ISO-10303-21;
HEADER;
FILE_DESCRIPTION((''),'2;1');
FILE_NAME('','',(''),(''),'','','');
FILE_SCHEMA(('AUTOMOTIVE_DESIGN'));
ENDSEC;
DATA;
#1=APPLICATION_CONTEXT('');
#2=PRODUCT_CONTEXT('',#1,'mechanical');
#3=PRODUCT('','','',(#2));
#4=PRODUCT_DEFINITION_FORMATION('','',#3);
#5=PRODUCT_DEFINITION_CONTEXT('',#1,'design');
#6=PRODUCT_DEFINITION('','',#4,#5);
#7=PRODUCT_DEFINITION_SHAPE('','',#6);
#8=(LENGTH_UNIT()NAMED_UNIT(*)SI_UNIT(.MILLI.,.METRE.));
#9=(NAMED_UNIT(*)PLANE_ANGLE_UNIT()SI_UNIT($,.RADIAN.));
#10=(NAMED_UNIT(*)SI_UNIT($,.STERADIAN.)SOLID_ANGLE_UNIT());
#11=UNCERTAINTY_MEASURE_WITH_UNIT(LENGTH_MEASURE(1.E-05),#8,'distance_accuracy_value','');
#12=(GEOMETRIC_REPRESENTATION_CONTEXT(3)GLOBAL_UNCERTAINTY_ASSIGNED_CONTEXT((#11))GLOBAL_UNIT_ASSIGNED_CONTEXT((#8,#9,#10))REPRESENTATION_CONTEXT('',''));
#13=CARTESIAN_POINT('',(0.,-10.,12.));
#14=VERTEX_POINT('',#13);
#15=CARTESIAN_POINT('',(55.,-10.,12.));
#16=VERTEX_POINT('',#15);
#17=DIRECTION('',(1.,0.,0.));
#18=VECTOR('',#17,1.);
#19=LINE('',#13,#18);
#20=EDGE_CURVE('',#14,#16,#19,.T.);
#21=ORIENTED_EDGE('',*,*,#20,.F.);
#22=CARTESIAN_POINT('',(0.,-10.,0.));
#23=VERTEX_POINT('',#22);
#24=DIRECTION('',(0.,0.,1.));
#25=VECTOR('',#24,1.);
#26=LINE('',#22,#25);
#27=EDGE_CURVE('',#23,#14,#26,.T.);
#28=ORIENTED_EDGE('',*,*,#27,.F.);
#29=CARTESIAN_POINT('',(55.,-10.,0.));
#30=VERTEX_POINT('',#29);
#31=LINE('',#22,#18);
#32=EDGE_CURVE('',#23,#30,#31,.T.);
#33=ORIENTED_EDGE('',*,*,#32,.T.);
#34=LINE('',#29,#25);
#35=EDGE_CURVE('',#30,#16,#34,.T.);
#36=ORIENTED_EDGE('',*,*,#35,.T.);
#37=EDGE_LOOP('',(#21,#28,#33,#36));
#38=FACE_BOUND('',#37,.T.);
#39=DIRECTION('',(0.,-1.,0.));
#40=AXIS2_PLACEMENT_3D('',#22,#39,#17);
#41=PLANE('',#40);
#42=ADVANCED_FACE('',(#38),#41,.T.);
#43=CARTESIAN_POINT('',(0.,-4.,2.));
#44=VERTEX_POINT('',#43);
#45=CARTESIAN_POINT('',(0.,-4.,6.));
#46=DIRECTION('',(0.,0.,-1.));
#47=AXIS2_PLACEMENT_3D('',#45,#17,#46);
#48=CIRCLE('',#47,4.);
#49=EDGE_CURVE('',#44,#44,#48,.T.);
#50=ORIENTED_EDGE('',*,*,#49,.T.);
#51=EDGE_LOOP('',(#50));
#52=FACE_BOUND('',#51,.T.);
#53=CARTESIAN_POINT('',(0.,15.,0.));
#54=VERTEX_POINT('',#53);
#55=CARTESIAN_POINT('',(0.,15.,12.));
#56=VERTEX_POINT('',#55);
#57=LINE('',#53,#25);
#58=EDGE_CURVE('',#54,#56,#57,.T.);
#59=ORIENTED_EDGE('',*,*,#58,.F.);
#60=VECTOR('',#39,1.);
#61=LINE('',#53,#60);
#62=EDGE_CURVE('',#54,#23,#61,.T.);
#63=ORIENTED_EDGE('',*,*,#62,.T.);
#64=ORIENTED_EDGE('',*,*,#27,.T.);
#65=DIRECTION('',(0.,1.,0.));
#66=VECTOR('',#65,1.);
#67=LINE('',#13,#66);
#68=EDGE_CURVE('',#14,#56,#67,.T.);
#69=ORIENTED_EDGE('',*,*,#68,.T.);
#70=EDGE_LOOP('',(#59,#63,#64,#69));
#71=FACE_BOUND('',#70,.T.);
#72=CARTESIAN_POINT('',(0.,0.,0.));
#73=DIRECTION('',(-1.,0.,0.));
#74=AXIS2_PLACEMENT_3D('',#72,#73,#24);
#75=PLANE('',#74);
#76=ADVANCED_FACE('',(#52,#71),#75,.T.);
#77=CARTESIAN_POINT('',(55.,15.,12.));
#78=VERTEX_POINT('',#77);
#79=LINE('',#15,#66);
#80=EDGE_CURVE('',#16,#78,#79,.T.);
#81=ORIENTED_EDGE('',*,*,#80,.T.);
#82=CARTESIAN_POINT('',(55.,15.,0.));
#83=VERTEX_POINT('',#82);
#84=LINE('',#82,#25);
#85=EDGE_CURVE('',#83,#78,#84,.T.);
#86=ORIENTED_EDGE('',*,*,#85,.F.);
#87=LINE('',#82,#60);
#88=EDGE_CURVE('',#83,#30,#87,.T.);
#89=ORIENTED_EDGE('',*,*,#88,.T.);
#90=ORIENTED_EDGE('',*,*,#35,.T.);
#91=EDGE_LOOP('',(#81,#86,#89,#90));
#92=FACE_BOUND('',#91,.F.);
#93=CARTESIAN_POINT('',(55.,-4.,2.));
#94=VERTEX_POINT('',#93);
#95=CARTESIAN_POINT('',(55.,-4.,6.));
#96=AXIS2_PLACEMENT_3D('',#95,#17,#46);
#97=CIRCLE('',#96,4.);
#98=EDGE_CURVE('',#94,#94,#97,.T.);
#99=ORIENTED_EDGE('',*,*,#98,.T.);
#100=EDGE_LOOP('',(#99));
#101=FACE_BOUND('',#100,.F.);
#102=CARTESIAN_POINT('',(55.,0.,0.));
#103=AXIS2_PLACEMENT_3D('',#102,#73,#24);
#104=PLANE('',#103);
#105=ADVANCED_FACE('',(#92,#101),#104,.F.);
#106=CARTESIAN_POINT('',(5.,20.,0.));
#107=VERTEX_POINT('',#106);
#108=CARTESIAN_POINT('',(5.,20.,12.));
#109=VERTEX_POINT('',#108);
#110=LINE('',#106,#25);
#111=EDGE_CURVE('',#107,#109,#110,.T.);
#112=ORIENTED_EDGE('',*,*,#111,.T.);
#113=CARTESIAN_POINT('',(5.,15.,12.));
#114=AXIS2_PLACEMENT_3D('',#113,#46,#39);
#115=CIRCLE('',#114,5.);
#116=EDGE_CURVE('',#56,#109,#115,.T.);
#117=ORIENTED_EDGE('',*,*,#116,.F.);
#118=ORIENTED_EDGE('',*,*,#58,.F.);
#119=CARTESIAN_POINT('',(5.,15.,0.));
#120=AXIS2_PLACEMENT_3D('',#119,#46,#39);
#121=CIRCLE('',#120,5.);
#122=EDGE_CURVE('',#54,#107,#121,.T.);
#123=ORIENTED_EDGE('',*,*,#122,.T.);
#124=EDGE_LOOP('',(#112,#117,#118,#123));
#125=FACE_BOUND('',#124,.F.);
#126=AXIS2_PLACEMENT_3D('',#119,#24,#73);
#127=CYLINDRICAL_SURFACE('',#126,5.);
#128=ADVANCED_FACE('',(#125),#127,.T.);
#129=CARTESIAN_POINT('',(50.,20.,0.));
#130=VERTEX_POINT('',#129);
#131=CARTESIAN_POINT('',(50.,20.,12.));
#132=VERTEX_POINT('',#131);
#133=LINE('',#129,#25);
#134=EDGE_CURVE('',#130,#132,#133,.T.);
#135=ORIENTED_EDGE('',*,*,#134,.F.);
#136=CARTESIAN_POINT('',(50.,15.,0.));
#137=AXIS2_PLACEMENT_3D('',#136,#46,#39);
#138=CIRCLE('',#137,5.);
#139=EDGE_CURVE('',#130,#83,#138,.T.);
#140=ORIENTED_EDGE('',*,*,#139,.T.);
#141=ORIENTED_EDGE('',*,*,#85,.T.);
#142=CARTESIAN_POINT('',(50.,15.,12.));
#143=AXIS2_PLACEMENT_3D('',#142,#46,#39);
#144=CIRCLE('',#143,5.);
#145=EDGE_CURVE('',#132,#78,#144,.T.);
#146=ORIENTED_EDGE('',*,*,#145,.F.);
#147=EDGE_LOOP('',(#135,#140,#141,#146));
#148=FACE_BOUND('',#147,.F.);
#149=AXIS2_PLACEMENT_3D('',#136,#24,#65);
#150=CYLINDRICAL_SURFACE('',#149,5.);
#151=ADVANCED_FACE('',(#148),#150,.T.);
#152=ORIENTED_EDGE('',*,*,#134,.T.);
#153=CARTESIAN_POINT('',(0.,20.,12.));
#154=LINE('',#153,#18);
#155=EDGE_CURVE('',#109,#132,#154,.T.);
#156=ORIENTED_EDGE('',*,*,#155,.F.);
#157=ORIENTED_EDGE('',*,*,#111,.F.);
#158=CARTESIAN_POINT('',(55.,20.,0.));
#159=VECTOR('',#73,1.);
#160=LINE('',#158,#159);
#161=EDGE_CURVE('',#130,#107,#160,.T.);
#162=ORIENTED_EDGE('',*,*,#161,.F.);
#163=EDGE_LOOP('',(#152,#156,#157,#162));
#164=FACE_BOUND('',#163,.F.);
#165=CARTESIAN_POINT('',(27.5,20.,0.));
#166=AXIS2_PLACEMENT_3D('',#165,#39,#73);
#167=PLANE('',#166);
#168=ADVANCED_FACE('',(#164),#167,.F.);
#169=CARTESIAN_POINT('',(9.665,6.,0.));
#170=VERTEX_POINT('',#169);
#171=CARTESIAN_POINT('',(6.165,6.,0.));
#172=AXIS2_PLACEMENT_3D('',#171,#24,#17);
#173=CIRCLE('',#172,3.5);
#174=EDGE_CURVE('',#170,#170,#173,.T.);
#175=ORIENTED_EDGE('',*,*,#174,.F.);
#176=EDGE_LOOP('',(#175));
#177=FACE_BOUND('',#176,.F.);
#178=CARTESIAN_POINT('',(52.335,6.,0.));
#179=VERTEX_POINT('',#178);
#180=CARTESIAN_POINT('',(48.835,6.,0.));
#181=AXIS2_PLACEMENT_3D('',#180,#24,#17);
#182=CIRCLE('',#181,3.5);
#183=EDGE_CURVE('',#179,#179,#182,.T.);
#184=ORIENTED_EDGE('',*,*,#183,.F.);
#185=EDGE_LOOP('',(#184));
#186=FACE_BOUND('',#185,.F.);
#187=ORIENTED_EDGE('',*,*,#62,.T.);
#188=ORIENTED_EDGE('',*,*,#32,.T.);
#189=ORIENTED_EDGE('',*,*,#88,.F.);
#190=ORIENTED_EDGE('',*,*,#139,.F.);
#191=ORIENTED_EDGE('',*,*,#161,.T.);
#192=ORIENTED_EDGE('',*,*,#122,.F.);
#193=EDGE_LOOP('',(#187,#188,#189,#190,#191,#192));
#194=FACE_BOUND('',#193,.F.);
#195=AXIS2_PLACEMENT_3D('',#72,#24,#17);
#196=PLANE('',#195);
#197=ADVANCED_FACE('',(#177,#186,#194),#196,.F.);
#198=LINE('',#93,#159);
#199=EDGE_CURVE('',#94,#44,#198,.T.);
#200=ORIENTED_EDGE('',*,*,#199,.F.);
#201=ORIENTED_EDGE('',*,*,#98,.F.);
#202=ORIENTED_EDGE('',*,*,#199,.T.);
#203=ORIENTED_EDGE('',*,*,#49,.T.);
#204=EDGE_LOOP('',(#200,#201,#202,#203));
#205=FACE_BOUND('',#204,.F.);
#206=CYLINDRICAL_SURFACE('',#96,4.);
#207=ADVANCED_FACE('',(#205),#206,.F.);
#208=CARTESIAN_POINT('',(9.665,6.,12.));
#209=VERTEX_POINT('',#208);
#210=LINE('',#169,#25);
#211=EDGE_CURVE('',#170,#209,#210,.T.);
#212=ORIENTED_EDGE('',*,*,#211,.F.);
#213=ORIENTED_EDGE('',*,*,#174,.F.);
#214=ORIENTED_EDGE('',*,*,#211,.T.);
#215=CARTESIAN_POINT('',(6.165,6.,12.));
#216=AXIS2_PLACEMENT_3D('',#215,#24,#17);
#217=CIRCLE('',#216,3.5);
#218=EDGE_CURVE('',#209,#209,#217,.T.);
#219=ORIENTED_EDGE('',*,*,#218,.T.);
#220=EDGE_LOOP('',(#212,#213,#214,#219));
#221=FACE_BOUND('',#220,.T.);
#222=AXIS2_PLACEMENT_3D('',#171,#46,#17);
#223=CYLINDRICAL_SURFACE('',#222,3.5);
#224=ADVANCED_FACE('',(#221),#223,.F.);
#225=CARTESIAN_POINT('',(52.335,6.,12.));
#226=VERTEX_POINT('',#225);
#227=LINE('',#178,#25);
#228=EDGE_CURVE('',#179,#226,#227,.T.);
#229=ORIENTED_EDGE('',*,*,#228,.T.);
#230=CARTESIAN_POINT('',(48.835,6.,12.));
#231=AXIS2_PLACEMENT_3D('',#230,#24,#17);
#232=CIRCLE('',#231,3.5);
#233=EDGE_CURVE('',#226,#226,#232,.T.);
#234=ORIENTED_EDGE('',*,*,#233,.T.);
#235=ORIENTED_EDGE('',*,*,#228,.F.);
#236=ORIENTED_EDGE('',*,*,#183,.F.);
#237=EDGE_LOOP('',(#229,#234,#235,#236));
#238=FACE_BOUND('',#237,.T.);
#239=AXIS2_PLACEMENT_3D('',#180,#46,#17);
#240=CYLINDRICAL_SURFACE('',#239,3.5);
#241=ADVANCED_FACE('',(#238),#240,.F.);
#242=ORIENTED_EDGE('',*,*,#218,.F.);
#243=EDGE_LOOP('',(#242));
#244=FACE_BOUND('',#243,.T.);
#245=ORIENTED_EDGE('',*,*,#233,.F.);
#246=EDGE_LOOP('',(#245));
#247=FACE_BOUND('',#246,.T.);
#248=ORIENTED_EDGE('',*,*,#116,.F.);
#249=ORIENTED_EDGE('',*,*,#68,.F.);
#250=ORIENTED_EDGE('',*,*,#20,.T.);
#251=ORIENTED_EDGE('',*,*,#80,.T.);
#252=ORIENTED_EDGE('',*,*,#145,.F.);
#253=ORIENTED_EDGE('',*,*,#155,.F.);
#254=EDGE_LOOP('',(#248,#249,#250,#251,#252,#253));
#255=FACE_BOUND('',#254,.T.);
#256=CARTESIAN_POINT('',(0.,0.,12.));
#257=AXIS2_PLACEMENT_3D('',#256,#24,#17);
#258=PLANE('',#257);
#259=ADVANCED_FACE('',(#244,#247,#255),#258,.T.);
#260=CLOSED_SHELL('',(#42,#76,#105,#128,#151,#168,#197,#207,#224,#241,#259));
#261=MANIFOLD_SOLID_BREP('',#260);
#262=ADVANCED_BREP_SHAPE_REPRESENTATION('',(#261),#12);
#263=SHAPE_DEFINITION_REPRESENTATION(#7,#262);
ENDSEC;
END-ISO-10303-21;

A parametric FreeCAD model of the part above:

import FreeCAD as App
import Part
import Sketcher


def edges_at(feature, points):
    """Names of the edges that pass closest to the given points."""
    edges = feature.Shape.Edges
    near = lambda p: min(range(len(edges)), key=lambda i: edges[i].distToShape(Part.Vertex(*p))[0])
    return sorted({f"Edge{near(p) + 1}" for p in points})


def add_polygon(sketch, points):
    """Adds a closed chain of lines whose ends are joined by coincident constraints."""
    first, n = sketch.GeometryCount, len(points)
    for a, b in zip(points, points[1:] + points[:1]):
        sketch.addGeometry(Part.LineSegment(App.Vector(*a, 0), App.Vector(*b, 0)), False)
    for i in range(n):
        sketch.addConstraint(Sketcher.Constraint("Coincident", first + i, 2, first + (i + 1) % n, 1))

doc = App.newDocument("Part")
body = doc.addObject("PartDesign::Body", "Body")

# Sketch on XY plane
sketch1 = body.newObject("Sketcher::SketchObject", "Sketch")
sketch1.AttachmentSupport = (doc.getObject("XY_Plane"), [""])
sketch1.MapMode = "FlatFace"
add_polygon(sketch1, [(0, 20), (0, 0), (55, 0), (55, 20)])  # lines 0-3
sketch1.addGeometry(Part.Circle(App.Vector(6.2, 6, 0), App.Vector(0, 0, 1), 3.5), False)  # 4
sketch1.addGeometry(Part.Circle(App.Vector(48.8, 6, 0), App.Vector(0, 0, 1), 3.5), False)  # 5
sketch1.addConstraint(Sketcher.Constraint("Vertical", 0))
sketch1.addConstraint(Sketcher.Constraint("Horizontal", 1))
sketch1.addConstraint(Sketcher.Constraint("Vertical", 2))
sketch1.addConstraint(Sketcher.Constraint("Horizontal", 3))
sketch1.addConstraint(Sketcher.Constraint("Coincident", 0, 2, -1, 1))
sketch1.addConstraint(Sketcher.Constraint("Equal", 4, 5))
sketch1.addConstraint(Sketcher.Constraint("Horizontal", 4, 3, 5, 3))
sketch1.addConstraint(Sketcher.Constraint("Diameter", 4, 7.0))
sketch1.addConstraint(Sketcher.Constraint("DistanceX", 1, 1, 1, 2, 55.0))
sketch1.addConstraint(Sketcher.Constraint("DistanceY", 0, 2, 0, 1, 20.0))
sketch1.addConstraint(Sketcher.Constraint("DistanceY", -1, 1, 4, 3, 6.0))
sketch1.addConstraint(Sketcher.Constraint("DistanceX", 4, 3, 5, 3, 42.67))
sketch1.addConstraint(Sketcher.Constraint("DistanceX", -1, 1, 4, 3, 6.165))
pad1 = body.newObject("PartDesign::Pad", "Pad")
pad1.Profile = sketch1
pad1.Length = 12
doc.recompute()

fillet = body.newObject("PartDesign::Fillet", "Fillet")
fillet.Base = (pad1, edges_at(pad1, [(55, 20, 6), (0, 20, 6)]))
fillet.Radius = 5

# Sketch on XZ plane
sketch2 = body.newObject("Sketcher::SketchObject", "Sketch001")
sketch2.AttachmentSupport = (doc.getObject("XZ_Plane"), [""])
sketch2.MapMode = "FlatFace"
add_polygon(sketch2, [(0, 12), (0, 0), (55, 0), (55, 12)])  # lines 0-3
sketch2.addConstraint(Sketcher.Constraint("Vertical", 0))
sketch2.addConstraint(Sketcher.Constraint("Horizontal", 1))
sketch2.addConstraint(Sketcher.Constraint("Vertical", 2))
sketch2.addConstraint(Sketcher.Constraint("Horizontal", 3))
sketch2.addConstraint(Sketcher.Constraint("Coincident", 0, 2, -1, 1))
sketch2.addConstraint(Sketcher.Constraint("DistanceX", 1, 1, 1, 2, 55.0))
sketch2.addConstraint(Sketcher.Constraint("DistanceY", 0, 2, 0, 1, 12.0))
pad2 = body.newObject("PartDesign::Pad", "Pad001")
pad2.Profile = sketch2
pad2.Length = 10

# Sketch on YZ plane
sketch3 = body.newObject("Sketcher::SketchObject", "Sketch002")
sketch3.AttachmentSupport = (doc.getObject("YZ_Plane"), [""])
sketch3.MapMode = "FlatFace"
sketch3.AttachmentOffset = App.Placement(App.Vector(0, 0, 55), App.Rotation())
sketch3.addGeometry(Part.Circle(App.Vector(-4, 6, 0), App.Vector(0, 0, 1), 4), False)
sketch3.addConstraint(Sketcher.Constraint("Diameter", 0, 8.0))
sketch3.addConstraint(Sketcher.Constraint("DistanceY", -1, 1, 0, 3, 6.0))
sketch3.addConstraint(Sketcher.Constraint("DistanceX", 0, 3, -1, 1, 4.0))
pocket1 = body.newObject("PartDesign::Pocket", "Pocket")
pocket1.Profile = sketch3
pocket1.Length = 55

doc.recompute()
